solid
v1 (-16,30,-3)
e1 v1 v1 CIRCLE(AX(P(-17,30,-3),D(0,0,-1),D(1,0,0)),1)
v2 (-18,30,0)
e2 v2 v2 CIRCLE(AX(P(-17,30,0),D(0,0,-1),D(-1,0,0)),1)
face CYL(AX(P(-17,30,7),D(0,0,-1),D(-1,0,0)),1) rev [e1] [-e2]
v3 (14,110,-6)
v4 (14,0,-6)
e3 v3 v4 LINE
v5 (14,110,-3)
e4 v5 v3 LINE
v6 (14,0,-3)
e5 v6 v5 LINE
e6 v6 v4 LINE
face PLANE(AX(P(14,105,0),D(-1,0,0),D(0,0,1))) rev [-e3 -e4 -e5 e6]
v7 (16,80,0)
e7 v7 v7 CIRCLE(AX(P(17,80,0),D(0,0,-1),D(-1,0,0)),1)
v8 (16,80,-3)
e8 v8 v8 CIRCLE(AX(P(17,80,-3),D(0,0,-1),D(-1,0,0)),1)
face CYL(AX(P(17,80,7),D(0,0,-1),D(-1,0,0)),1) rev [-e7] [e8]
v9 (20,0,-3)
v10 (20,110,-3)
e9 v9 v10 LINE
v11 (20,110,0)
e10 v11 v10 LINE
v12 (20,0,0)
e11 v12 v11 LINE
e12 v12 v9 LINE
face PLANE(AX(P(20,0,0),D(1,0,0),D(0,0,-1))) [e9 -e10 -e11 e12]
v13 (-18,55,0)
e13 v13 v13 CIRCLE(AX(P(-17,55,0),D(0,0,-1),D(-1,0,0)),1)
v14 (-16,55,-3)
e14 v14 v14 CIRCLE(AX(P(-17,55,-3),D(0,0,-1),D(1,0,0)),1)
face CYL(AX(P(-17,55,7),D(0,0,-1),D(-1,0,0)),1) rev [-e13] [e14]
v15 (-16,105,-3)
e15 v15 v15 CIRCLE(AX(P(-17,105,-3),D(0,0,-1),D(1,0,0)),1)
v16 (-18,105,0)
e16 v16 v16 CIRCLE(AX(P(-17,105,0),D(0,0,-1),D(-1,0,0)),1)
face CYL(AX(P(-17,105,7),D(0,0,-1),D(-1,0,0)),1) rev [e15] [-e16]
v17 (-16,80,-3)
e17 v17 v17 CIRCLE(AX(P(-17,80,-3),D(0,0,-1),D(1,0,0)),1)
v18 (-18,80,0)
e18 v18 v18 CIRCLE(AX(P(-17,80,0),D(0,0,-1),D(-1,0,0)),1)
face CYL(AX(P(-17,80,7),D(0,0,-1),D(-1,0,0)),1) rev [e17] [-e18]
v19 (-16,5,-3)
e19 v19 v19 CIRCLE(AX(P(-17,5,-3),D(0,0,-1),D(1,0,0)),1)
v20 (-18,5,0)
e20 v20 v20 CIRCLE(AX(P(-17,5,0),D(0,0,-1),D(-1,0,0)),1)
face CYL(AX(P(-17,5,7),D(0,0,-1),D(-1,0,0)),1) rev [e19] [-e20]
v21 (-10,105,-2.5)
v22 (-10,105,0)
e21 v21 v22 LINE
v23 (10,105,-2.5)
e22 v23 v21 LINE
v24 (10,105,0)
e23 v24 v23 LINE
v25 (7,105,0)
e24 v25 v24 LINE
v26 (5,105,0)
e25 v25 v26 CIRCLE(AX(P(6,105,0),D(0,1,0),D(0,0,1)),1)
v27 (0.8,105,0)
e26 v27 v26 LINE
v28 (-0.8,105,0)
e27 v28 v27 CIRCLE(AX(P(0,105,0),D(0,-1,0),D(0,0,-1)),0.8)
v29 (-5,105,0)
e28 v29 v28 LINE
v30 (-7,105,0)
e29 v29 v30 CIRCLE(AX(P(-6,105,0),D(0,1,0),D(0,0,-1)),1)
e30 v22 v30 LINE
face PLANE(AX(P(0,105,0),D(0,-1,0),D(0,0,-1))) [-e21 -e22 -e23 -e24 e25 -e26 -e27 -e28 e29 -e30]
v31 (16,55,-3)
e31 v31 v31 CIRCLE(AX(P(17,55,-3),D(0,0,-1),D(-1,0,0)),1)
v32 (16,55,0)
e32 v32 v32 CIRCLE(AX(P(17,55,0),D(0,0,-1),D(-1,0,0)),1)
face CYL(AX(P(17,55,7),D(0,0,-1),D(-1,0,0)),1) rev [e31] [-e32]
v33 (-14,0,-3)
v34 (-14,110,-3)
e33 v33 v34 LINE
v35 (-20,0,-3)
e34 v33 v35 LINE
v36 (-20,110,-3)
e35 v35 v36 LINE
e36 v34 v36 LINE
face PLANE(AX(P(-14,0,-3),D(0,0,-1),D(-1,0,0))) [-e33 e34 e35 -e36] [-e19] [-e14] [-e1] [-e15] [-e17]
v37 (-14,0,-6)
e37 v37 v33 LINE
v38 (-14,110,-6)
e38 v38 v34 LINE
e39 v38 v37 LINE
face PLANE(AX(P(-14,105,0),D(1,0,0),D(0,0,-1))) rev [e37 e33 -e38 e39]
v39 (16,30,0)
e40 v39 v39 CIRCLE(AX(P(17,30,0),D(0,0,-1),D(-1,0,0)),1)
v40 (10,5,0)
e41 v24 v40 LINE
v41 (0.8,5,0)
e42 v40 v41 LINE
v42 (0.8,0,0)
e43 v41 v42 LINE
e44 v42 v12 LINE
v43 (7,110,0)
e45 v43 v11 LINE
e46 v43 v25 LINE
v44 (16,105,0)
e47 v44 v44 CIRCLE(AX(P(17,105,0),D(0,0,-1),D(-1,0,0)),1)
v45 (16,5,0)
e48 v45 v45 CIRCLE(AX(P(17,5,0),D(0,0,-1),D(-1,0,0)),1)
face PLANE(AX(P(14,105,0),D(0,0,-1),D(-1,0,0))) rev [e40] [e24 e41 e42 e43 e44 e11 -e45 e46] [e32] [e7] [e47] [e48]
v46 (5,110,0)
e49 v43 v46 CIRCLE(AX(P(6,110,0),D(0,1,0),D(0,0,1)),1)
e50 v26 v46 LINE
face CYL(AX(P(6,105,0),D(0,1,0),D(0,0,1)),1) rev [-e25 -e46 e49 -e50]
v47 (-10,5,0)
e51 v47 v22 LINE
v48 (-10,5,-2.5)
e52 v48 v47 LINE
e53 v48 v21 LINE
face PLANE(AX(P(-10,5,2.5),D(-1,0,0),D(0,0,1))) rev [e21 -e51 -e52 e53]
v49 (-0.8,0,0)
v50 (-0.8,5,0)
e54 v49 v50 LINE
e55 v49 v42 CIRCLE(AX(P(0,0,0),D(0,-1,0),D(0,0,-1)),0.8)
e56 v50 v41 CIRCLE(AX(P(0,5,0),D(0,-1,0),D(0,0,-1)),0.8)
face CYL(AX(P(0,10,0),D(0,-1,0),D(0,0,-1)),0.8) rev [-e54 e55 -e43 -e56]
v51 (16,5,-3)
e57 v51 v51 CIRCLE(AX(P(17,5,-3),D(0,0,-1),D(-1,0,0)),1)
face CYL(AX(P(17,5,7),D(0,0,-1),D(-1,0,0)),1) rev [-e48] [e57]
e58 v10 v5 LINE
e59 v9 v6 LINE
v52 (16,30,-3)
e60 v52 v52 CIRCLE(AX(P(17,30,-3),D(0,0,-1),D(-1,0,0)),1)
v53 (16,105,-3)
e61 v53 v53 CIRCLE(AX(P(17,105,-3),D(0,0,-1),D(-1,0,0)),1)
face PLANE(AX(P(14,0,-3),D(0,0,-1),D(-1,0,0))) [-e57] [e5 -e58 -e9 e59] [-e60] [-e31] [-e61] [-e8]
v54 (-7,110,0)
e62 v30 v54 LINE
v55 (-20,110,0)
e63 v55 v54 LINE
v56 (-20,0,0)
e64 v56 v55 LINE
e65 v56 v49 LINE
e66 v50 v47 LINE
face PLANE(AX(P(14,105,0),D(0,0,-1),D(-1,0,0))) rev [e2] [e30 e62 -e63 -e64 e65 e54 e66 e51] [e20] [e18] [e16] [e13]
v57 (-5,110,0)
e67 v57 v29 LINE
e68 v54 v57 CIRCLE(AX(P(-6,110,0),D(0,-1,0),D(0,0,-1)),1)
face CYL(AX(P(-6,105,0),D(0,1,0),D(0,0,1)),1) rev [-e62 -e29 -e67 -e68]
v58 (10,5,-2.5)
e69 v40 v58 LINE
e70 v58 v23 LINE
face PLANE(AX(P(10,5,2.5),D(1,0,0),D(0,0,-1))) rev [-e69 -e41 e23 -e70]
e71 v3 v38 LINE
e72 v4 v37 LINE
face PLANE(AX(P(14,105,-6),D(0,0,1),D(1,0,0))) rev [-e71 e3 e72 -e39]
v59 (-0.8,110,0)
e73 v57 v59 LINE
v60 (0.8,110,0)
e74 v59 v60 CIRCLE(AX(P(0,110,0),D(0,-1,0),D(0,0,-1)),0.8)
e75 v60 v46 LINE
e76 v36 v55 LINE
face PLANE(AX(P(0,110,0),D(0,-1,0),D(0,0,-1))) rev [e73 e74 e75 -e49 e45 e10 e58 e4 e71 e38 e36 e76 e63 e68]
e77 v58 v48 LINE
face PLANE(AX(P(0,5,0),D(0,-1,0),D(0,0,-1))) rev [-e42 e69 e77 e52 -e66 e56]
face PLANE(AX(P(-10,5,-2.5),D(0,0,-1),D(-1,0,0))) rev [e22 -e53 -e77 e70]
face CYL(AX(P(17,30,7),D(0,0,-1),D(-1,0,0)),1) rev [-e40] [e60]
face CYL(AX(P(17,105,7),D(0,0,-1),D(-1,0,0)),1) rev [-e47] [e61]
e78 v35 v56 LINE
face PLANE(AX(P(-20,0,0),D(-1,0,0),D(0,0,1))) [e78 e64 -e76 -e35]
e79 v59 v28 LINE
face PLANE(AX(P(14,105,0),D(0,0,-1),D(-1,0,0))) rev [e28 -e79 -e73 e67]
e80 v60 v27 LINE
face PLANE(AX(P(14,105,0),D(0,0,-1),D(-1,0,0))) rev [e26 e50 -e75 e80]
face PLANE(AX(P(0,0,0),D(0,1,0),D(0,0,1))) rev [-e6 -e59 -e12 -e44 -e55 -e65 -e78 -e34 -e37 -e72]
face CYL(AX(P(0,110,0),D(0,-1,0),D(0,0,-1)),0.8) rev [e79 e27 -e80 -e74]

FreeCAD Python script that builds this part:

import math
import FreeCAD as App
import Part
import Sketcher
Q = App.Units.Quantity


def add_polygon(sketch, points):
    """Adds a closed chain of lines whose ends are joined by coincident constraints."""
    first, n = sketch.GeometryCount, len(points)
    for a, b in zip(points, points[1:] + points[:1]):
        sketch.addGeometry(Part.LineSegment(App.Vector(*a, 0), App.Vector(*b, 0)), False)
    for i in range(n):
        sketch.addConstraint(Sketcher.Constraint("Coincident", first + i, 2, first + (i + 1) % n, 1))

doc = App.newDocument("Part")
params = doc.addObject("Spreadsheet::Sheet", "Params")
for row, (alias, value) in enumerate([
    ("sketch1_width", "28 mm"),
    ("sketch1_height", "6 mm"),
    ("pad1_length", "105 mm"),
    ("sketch2_width", "20 mm"),
    ("sketch2_height", "5 mm"),
    ("pocket1_length", "100 mm"),
    ("sketch3_width", "6 mm"),
    ("sketch3_height", "3 mm"),
    ("pad2_length", "105 mm"),
    ("sketch4_diameter", "1.6 mm"),
    ("pocket2_length", "10 mm"),
    ("sketch5_radius", "0.8 mm"),
    ("sketch5_width", "6 mm"),
    ("sketch5_width2", "28 mm"),
    ("sketch5_height", "3 mm"),
    ("pad3_length", "5 mm"),
    ("sketch6_diameter", "2 mm"),
    ("pocket3_length", "10 mm"),
    ("sketch7_diameter", "2 mm"),
    ("pocket4_length", "5 mm"),
], start=1):
    params.set(f"A{row}", alias)
    params.set(f"B{row}", "=" + value)
    params.setAlias(f"B{row}", alias)

body = doc.addObject("PartDesign::Body", "Body")

sketch1 = body.newObject("Sketcher::SketchObject", "Sketch")
sketch1.AttachmentSupport = (doc.getObject("XZ_Plane"), [""])
sketch1.MapMode = "FlatFace"
add_polygon(sketch1, [(-14, -6), (-14, 0), (14, 0), (14, -6)])
sketch1.addConstraint([
    Sketcher.Constraint("Vertical", 0),
    Sketcher.Constraint("Horizontal", 1),
    Sketcher.Constraint("Vertical", 2),
    Sketcher.Constraint("Horizontal", 3),
    Sketcher.Constraint("Symmetric", 0, 2, 1, 2, -1, 1),
    Sketcher.Constraint("DistanceX", 1, 1, 1, 2, Q("28 mm")),
    Sketcher.Constraint("DistanceY", 0, 1, 0, 2, Q("6 mm")),
])
sketch1.setExpression("Constraints[9]", "Params.sketch1_width")
sketch1.setExpression("Constraints[10]", "Params.sketch1_height")
pad1 = body.newObject("PartDesign::Pad", "Pad")
pad1.Profile = sketch1
pad1.setExpression("Length", "Params.pad1_length")
pad1.Reversed = True

sketch2 = body.newObject("Sketcher::SketchObject", "Sketch001")
sketch2.AttachmentSupport = (doc.getObject("XZ_Plane"), [""])
sketch2.MapMode = "FlatFace"
sketch2.AttachmentOffset = App.Placement(App.Vector(0, 0, -105), App.Rotation())
add_polygon(sketch2, [(-10, -2), (-10, 2), (10, 2), (10, -2)])
sketch2.addConstraint([
    Sketcher.Constraint("Vertical", 0),
    Sketcher.Constraint("Horizontal", 1),
    Sketcher.Constraint("Vertical", 2),
    Sketcher.Constraint("Horizontal", 3),
    Sketcher.Constraint("Symmetric", 0, 2, 2, 2, -1, 1),
    Sketcher.Constraint("DistanceX", 1, 1, 1, 2, Q("20 mm")),
    Sketcher.Constraint("DistanceY", 0, 1, 0, 2, Q("5 mm")),
])
sketch2.setExpression("Constraints[9]", "Params.sketch2_width")
sketch2.setExpression("Constraints[10]", "Params.sketch2_height")
pocket1 = body.newObject("PartDesign::Pocket", "Pocket")
pocket1.Profile = sketch2
pocket1.setExpression("Length", "Params.pocket1_length")
pocket1.Reversed = True

sketch3 = body.newObject("Sketcher::SketchObject", "Sketch002")
sketch3.AttachmentSupport = (doc.getObject("XZ_Plane"), [""])
sketch3.MapMode = "FlatFace"
sketch3.AttachmentOffset = App.Placement(App.Vector(0, 0, -105), App.Rotation())
add_polygon(sketch3, [(14, -3), (14, 0), (20, 0), (20, -3)])
add_polygon(sketch3, [(-20, -3), (-20, 0), (-14, 0), (-14, -3)])
sketch3.addConstraint([
    Sketcher.Constraint("Vertical", 0),
    Sketcher.Constraint("Horizontal", 1),
    Sketcher.Constraint("Vertical", 2),
    Sketcher.Constraint("Horizontal", 3),
    Sketcher.Constraint("Vertical", 4),
    Sketcher.Constraint("Horizontal", 5),
    Sketcher.Constraint("Vertical", 6),
    Sketcher.Constraint("Horizontal", 7),
    Sketcher.Constraint("Symmetric", 1, 2, 4, 2, -1, 1),
    Sketcher.Constraint("Symmetric", 0, 2, 5, 2, -2),
    Sketcher.Constraint("Horizontal", 3, 2, 6, 2),
    Sketcher.Constraint("DistanceX", 1, 1, 1, 2, Q("6 mm")),
    Sketcher.Constraint("DistanceY", 0, 1, 0, 2, Q("3 mm")),
    Sketcher.Constraint("DistanceX", -1, 1, 0, 2, Q("14 mm")),
])
sketch3.setExpression("Constraints[19]", "Params.sketch3_width")
sketch3.setExpression("Constraints[20]", "Params.sketch3_height")
pad2 = body.newObject("PartDesign::Pad", "Pad001")
pad2.Profile = sketch3
pad2.setExpression("Length", "Params.pad2_length")

sketch4 = body.newObject("Sketcher::SketchObject", "Sketch003")
sketch4.AttachmentSupport = (doc.getObject("XZ_Plane"), [""])
sketch4.MapMode = "FlatFace"
sketch4.addGeometry(Part.Circle(App.Vector(0, 0, 0), App.Vector(0, 0, 1), 0.8), False)
sketch4.addConstraint([
    Sketcher.Constraint("Coincident", 0, 3, -1, 1),
    Sketcher.Constraint("Diameter", 0, Q("1.6 mm")),
])
sketch4.setExpression("Constraints[1]", "Params.sketch4_diameter")
pocket2 = body.newObject("PartDesign::Pocket", "Pocket001")
pocket2.Profile = sketch4
pocket2.setExpression("Length", "Params.pocket2_length")

sketch5 = body.newObject("Sketcher::SketchObject", "Sketch004")
sketch5.AttachmentSupport = (doc.getObject("XZ_Plane"), [""])
sketch5.MapMode = "FlatFace"
sketch5.AttachmentOffset = App.Placement(App.Vector(0, 0, -105), App.Rotation())
sketch5.addGeometry([
    Part.LineSegment(App.Vector(-20, 0, 0), App.Vector(-0.8, 0, 0)),
    Part.ArcOfCircle(Part.Circle(App.Vector(0, 0, 0), App.Vector(0, 0, 1), 0.8), math.radians(180), math.radians(360)),
    Part.LineSegment(App.Vector(0.8, 0, 0), App.Vector(20, 0, 0)),
    Part.LineSegment(App.Vector(20, 0, 0), App.Vector(20, -3, 0)),
    Part.LineSegment(App.Vector(20, -3, 0), App.Vector(14, -3, 0)),
    Part.LineSegment(App.Vector(14, -3, 0), App.Vector(14, -6, 0)),
    Part.LineSegment(App.Vector(14, -6, 0), App.Vector(-14, -6, 0)),
    Part.LineSegment(App.Vector(-14, -6, 0), App.Vector(-14, -3, 0)),
    Part.LineSegment(App.Vector(-14, -3, 0), App.Vector(-20, -3, 0)),
    Part.LineSegment(App.Vector(-20, -3, 0), App.Vector(-20, 0, 0)),
], False)
sketch5.addConstraint([
    Sketcher.Constraint("Coincident", 0, 2, 1, 1),
    Sketcher.Constraint("Coincident", 1, 2, 2, 1),
    Sketcher.Constraint("Coincident", 2, 2, 3, 1),
    Sketcher.Constraint("Coincident", 3, 2, 4, 1),
    Sketcher.Constraint("Coincident", 4, 2, 5, 1),
    Sketcher.Constraint("Coincident", 5, 2, 6, 1),
    Sketcher.Constraint("Coincident", 6, 2, 7, 1),
    Sketcher.Constraint("Coincident", 7, 2, 8, 1),
    Sketcher.Constraint("Coincident", 8, 2, 9, 1),
    Sketcher.Constraint("Coincident", 9, 2, 0, 1),
    Sketcher.Constraint("Horizontal", 0),
    Sketcher.Constraint("Horizontal", 2),
    Sketcher.Constraint("Vertical", 3),
    Sketcher.Constraint("Horizontal", 4),
    Sketcher.Constraint("Vertical", 5),
    Sketcher.Constraint("Horizontal", 6),
    Sketcher.Constraint("Vertical", 7),
    Sketcher.Constraint("Horizontal", 8),
    Sketcher.Constraint("Vertical", 9),
    Sketcher.Constraint("Coincident", 1, 3, -1, 1),
    Sketcher.Constraint("Symmetric", 2, 2, 9, 2, -1, 1),
    Sketcher.Constraint("Symmetric", 4, 2, 7, 2, -2),
    Sketcher.Constraint("PointOnObject", 0, 2, -1),
    Sketcher.Constraint("Equal", 3, 5),
    Sketcher.Constraint("Radius", 1, Q("0.8 mm")),
    Sketcher.Constraint("DistanceX", 4, 2, 4, 1, Q("6 mm")),
    Sketcher.Constraint("DistanceX", 6, 2, 6, 1, Q("28 mm")),
    Sketcher.Constraint("DistanceY", 3, 2, 3, 1, Q("3 mm")),
])
sketch5.setExpression("Constraints[24]", "Params.sketch5_radius")
sketch5.setExpression("Constraints[25]", "Params.sketch5_width")
sketch5.setExpression("Constraints[26]", "Params.sketch5_width2")
sketch5.setExpression("Constraints[27]", "Params.sketch5_height")
pad3 = body.newObject("PartDesign::Pad", "Pad002")
pad3.Profile = sketch5
pad3.setExpression("Length", "Params.pad3_length")
pad3.Reversed = True

sketch6 = body.newObject("Sketcher::SketchObject", "Sketch005")
sketch6.AttachmentSupport = (doc.getObject("XY_Plane"), [""])
sketch6.MapMode = "FlatFace"
sketch6.AttachmentOffset = App.Placement(App.Vector(0, 0, -3), App.Rotation())
sketch6.addGeometry([
    Part.Circle(App.Vector(17, 5, 0), App.Vector(0, 0, 1), 1),
    Part.Circle(App.Vector(17, 30, 0), App.Vector(0, 0, 1), 1),
    Part.Circle(App.Vector(17, 55, 0), App.Vector(0, 0, 1), 1),
    Part.Circle(App.Vector(17, 80, 0), App.Vector(0, 0, 1), 1),
    Part.Circle(App.Vector(-17, 80, 0), App.Vector(0, 0, 1), 1),
    Part.Circle(App.Vector(-17, 55, 0), App.Vector(0, 0, 1), 1),
    Part.Circle(App.Vector(-17, 30, 0), App.Vector(0, 0, 1), 1),
    Part.Circle(App.Vector(-17, 5, 0), App.Vector(0, 0, 1), 1),
    Part.Circle(App.Vector(17, 105, 0), App.Vector(0, 0, 1), 1),
    Part.Circle(App.Vector(-17, 105, 0), App.Vector(0, 0, 1), 1),
], False)
sketch6.addConstraint([
    Sketcher.Constraint("Equal", 0, 1),
    Sketcher.Constraint("Equal", 1, 2),
    Sketcher.Constraint("Equal", 2, 3),
    Sketcher.Constraint("Equal", 3, 4),
    Sketcher.Constraint("Equal", 4, 5),
    Sketcher.Constraint("Equal", 5, 6),
    Sketcher.Constraint("Equal", 6, 7),
    Sketcher.Constraint("Equal", 7, 8),
    Sketcher.Constraint("Equal", 8, 9),
    Sketcher.Constraint("Symmetric", 3, 3, 4, 3, -2),
    Sketcher.Constraint("Symmetric", 2, 3, 5, 3, -2),
    Sketcher.Constraint("Symmetric", 1, 3, 6, 3, -2),
    Sketcher.Constraint("Symmetric", 0, 3, 7, 3, -2),
    Sketcher.Constraint("Symmetric", 8, 3, 9, 3, -2),
    Sketcher.Constraint("Vertical", 0, 3, 1, 3),
    Sketcher.Constraint("Vertical", 1, 3, 2, 3),
    Sketcher.Constraint("Vertical", 2, 3, 3, 3),
    Sketcher.Constraint("Vertical", 3, 3, 8, 3),
    Sketcher.Constraint("Diameter", 0, Q("2 mm")),
    Sketcher.Constraint("DistanceX", -1, 1, 0, 3, Q("17 mm")),
    Sketcher.Constraint("DistanceY", -1, 1, 0, 3, Q("5 mm")),
    Sketcher.Constraint("DistanceY", -1, 1, 1, 3, Q("30 mm")),
    Sketcher.Constraint("DistanceY", -1, 1, 2, 3, Q("55 mm")),
    Sketcher.Constraint("DistanceY", -1, 1, 3, 3, Q("80 mm")),
    Sketcher.Constraint("DistanceY", -1, 1, 8, 3, Q("105 mm")),
])
sketch6.setExpression("Constraints[18]", "Params.sketch6_diameter")
pocket3 = body.newObject("PartDesign::Pocket", "Pocket002")
pocket3.Profile = sketch6
pocket3.setExpression("Length", "Params.pocket3_length")
pocket3.Reversed = True

sketch7 = body.newObject("Sketcher::SketchObject", "Sketch006")
sketch7.AttachmentSupport = (doc.getObject("XZ_Plane"), [""])
sketch7.MapMode = "FlatFace"
sketch7.AttachmentOffset = App.Placement(App.Vector(0, 0, -110), App.Rotation())
sketch7.addGeometry([
    Part.Circle(App.Vector(6, 0, 0), App.Vector(0, 0, 1), 1),
    Part.Circle(App.Vector(-6, 0, 0), App.Vector(0, 0, 1), 1),
], False)
sketch7.addConstraint([
    Sketcher.Constraint("Equal", 0, 1),
    Sketcher.Constraint("Symmetric", 0, 3, 1, 3, -1, 1),
    Sketcher.Constraint("PointOnObject", 0, 3, -1),
    Sketcher.Constraint("Diameter", 0, Q("2 mm")),
    Sketcher.Constraint("DistanceX", -1, 1, 0, 3, Q("6 mm")),
])
sketch7.setExpression("Constraints[3]", "Params.sketch7_diameter")
pocket4 = body.newObject("PartDesign::Pocket", "Pocket003")
pocket4.Profile = sketch7
pocket4.setExpression("Length", "Params.pocket4_length")
pocket4.Reversed = True

doc.recompute()
